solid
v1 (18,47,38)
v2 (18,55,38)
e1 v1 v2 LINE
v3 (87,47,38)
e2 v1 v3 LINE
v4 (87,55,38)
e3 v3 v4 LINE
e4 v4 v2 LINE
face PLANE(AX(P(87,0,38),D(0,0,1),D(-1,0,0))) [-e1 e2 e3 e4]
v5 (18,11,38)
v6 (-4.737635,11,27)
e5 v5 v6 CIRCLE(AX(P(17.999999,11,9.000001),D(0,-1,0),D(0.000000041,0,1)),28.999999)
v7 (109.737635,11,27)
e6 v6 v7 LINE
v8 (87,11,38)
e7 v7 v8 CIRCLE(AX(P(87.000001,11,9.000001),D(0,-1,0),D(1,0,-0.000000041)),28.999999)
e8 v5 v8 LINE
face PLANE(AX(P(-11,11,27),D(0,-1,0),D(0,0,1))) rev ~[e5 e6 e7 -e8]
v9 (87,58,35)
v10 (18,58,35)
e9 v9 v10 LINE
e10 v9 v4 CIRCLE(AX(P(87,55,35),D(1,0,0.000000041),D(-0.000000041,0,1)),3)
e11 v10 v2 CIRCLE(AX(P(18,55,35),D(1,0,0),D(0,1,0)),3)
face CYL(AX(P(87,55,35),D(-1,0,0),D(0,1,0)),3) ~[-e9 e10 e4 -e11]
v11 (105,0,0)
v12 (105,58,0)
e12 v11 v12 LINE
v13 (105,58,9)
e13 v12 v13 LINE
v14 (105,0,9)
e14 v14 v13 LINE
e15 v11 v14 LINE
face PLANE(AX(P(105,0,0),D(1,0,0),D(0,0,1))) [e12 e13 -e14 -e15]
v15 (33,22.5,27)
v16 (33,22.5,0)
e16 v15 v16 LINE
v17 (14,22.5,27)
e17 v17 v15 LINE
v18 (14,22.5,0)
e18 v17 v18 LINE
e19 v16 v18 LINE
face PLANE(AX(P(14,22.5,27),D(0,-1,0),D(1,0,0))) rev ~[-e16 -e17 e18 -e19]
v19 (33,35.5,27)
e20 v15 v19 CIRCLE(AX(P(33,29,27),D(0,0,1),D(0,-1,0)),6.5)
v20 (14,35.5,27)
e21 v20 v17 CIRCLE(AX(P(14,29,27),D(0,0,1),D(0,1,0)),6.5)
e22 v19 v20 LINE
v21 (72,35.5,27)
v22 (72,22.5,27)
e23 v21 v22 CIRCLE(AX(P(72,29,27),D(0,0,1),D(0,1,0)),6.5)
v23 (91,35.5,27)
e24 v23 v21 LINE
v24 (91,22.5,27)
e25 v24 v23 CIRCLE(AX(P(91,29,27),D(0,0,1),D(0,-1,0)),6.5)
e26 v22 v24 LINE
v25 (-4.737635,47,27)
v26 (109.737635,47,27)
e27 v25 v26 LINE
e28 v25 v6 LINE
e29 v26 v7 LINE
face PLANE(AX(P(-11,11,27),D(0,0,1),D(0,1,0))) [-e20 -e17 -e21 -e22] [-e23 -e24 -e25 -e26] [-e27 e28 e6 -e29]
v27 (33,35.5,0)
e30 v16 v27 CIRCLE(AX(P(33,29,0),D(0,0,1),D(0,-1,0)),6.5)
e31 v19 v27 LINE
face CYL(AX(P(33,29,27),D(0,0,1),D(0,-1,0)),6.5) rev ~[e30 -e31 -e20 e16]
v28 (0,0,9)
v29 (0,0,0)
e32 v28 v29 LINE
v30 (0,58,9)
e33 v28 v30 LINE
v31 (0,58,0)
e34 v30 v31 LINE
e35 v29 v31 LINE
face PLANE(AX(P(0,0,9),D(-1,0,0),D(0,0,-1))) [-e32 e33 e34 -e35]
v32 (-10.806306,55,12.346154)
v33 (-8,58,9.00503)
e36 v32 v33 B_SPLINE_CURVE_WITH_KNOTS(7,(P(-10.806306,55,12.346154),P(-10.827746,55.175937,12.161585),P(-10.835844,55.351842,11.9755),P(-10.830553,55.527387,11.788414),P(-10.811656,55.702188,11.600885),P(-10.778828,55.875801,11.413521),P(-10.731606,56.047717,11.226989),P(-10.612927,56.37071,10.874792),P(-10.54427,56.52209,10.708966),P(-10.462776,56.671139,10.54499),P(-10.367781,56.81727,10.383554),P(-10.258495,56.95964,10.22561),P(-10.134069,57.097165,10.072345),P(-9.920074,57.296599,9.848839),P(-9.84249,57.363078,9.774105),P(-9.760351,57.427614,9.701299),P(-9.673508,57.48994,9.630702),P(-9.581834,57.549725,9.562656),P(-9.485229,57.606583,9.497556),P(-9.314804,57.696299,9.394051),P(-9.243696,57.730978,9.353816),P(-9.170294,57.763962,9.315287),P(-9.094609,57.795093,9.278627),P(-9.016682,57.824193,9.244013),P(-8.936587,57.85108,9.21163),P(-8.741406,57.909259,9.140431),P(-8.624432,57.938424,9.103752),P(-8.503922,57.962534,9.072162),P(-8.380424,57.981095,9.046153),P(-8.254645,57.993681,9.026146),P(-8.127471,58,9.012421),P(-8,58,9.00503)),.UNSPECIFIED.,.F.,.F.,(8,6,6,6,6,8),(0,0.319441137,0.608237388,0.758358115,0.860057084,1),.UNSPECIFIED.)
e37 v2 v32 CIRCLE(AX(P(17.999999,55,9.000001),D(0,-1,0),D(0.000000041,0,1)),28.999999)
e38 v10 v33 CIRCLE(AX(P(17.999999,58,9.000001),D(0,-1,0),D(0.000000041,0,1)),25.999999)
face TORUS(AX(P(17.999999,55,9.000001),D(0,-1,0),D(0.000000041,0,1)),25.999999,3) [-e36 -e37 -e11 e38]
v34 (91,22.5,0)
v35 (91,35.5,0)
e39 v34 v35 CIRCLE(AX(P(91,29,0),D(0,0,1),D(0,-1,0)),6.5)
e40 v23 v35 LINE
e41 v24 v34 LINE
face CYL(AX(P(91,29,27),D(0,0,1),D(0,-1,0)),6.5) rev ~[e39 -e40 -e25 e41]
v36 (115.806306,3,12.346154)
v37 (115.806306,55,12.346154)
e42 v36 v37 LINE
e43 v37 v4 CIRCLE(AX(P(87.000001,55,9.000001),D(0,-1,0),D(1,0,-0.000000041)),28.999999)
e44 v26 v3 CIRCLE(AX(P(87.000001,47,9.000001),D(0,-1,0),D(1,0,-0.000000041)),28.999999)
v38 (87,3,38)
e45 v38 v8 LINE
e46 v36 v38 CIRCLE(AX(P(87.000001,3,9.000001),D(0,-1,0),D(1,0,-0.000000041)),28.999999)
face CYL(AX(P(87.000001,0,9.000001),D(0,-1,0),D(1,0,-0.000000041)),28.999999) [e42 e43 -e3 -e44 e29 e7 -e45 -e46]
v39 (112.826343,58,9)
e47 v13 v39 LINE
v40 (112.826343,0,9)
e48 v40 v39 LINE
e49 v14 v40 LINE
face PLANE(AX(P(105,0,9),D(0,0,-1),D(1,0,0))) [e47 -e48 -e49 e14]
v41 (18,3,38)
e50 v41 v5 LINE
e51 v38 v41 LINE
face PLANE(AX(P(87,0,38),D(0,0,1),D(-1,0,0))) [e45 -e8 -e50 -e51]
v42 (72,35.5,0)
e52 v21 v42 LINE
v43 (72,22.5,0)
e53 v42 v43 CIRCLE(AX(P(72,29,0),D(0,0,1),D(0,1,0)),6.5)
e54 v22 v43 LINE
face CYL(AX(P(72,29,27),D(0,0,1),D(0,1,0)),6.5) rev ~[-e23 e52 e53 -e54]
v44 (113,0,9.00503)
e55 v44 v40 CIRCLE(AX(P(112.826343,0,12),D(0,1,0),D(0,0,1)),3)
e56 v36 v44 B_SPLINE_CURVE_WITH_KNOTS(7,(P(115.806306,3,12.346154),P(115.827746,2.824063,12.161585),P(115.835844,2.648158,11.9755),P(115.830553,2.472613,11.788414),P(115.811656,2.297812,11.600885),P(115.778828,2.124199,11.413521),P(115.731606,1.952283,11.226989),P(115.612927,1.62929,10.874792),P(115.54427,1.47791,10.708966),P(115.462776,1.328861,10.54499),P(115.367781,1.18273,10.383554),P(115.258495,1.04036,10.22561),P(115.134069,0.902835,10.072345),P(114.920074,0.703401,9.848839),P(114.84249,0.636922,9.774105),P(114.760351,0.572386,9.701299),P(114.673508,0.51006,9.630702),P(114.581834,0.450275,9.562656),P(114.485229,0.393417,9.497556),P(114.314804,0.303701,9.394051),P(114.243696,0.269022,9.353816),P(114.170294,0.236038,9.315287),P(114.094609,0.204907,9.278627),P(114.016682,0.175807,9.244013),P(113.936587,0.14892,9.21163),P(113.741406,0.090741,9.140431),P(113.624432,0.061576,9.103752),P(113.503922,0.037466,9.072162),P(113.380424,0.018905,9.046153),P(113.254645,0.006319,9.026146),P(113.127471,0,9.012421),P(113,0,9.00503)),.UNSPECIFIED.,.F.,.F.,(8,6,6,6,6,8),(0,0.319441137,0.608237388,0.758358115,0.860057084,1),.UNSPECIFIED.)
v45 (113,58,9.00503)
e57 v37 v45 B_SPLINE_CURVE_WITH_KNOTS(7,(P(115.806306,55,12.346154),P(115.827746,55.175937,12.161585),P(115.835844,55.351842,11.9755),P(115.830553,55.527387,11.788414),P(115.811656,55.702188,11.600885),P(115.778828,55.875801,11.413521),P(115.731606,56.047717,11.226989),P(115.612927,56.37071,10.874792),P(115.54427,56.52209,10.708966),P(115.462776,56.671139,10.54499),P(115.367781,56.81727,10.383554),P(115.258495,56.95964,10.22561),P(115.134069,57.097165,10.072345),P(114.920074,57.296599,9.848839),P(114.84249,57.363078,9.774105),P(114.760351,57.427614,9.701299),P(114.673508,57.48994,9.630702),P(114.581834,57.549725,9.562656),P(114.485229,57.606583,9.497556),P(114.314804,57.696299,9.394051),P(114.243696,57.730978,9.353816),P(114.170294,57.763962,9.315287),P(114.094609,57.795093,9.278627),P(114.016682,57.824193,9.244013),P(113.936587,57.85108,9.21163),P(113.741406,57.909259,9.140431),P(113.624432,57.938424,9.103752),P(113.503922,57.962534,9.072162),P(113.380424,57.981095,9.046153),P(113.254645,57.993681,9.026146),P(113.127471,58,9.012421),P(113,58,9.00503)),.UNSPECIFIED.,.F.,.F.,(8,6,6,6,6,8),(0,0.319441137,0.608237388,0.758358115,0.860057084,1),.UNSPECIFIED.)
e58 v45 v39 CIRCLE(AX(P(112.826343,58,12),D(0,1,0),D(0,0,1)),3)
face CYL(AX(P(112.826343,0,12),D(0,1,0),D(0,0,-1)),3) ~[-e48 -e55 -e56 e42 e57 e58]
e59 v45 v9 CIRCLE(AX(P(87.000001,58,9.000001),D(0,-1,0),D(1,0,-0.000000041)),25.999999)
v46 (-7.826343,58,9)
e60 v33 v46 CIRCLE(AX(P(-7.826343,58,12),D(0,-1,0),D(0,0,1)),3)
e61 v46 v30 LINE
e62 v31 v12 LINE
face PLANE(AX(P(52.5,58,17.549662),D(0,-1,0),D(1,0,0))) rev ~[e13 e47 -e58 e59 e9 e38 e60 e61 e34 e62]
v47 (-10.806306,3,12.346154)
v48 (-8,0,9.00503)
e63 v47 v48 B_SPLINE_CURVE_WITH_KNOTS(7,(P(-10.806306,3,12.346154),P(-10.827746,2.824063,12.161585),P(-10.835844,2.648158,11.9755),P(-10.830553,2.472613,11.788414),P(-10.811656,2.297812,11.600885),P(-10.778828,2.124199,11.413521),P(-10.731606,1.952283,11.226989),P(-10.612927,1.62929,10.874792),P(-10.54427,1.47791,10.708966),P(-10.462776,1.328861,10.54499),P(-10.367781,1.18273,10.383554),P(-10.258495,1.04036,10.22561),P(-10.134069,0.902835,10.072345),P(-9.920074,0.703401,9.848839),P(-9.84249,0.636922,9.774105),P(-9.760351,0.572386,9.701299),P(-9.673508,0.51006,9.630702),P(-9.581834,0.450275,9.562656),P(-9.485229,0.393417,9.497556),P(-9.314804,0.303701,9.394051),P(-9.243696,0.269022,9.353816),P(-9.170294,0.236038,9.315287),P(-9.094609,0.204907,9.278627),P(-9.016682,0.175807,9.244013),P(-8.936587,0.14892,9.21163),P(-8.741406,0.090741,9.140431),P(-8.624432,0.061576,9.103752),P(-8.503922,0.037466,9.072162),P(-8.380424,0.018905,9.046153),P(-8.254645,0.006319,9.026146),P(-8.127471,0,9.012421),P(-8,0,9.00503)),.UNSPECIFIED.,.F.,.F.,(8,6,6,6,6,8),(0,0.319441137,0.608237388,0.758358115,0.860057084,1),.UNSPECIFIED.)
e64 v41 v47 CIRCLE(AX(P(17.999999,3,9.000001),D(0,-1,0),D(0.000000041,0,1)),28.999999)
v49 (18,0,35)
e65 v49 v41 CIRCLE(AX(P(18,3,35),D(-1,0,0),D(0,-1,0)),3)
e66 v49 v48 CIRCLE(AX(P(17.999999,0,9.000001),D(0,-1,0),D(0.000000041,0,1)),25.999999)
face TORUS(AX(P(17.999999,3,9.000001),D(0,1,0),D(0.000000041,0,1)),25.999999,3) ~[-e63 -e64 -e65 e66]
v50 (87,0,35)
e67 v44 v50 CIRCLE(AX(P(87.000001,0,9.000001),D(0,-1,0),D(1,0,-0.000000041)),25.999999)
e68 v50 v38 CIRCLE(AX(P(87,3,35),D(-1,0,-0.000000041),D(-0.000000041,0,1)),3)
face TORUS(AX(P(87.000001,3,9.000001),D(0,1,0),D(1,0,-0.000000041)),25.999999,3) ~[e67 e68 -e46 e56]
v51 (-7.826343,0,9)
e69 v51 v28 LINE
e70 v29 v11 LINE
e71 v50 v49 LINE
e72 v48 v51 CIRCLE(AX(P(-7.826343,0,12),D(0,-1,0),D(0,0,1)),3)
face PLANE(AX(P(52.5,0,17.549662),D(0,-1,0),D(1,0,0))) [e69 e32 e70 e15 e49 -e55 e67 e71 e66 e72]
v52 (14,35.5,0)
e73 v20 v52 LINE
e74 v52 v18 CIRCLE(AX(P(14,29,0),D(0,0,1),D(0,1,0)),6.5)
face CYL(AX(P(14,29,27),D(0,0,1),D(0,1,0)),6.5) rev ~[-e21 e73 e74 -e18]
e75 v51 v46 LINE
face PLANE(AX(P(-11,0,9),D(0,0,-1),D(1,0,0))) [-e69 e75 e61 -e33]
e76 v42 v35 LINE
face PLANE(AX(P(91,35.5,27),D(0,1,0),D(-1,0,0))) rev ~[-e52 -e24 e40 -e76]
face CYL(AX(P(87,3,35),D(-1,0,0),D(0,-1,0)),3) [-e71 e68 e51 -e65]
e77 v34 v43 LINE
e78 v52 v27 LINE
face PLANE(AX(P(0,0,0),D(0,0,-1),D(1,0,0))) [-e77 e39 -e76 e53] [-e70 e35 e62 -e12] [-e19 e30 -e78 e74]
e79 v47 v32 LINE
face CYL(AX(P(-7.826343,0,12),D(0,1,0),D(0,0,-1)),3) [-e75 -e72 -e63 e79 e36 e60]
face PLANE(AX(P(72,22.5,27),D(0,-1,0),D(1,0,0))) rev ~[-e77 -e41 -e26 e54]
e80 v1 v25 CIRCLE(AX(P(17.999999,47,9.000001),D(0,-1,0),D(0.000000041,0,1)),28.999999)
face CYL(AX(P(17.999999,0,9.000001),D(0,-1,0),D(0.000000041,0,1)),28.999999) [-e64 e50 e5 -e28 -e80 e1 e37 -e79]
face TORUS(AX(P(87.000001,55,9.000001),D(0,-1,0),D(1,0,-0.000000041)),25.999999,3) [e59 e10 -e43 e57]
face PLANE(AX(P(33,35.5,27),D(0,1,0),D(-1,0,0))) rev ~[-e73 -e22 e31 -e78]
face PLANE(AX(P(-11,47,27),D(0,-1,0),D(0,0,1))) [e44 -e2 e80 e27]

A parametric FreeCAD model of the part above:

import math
import FreeCAD as App
import Part
import Sketcher
from FreeCAD import Vector


def edges_at(feature, points):
    """Names of the edges that pass closest to the given points."""
    edges = feature.Shape.Edges
    near = lambda p: min(range(len(edges)), key=lambda i: edges[i].distToShape(Part.Vertex(*p))[0])
    return sorted({f"Edge{near(p) + 1}" for p in points})

doc = App.newDocument("Part")
params = doc.addObject("Spreadsheet::Sheet", "Params")
for row, (alias, value) in enumerate([
    ("sketch1_radius", "28.999999 mm"),
    ("sketch1_width", "105 mm"),
    ("sketch1_width2", "11 mm"),
    ("sketch1_height", "9 mm"),
    ("pad1_length", "58 mm"),
    ("sketch2_width", "36 mm"),
    ("sketch2_height", "11 mm"),
    ("pocket1_length", "127 mm"),
    ("sketch3_radius", "6.5 mm"),
    ("sketch3_width", "19 mm"),
    ("pocket2_length", "38 mm"),
    ("fillet_radius", "3 mm"),
], start=1):
    params.set(f"A{row}", alias)
    params.set(f"B{row}", "=" + value)
    params.setAlias(f"B{row}", alias)

body = doc.addObject("PartDesign::Body", "Body")

# Sketch on XZ plane
sketch1 = body.newObject("Sketcher::SketchObject", "Sketch")
sketch1.AttachmentSupport = (doc.getObject("XZ_Plane"), [""])
sketch1.MapMode = "FlatFace"
sketch1.addGeometry([
    Part.LineSegment(Vector(0, 9, 0), Vector(0, 0, 0)),  # 0
    Part.LineSegment(Vector(0, 0, 0), Vector(105, 0, 0)),  # 1
    Part.LineSegment(Vector(105, 0, 0), Vector(105, 9, 0)),  # 2
    Part.LineSegment(Vector(105, 9, 0), Vector(116, 9, 0)),  # 3
    Part.ArcOfCircle(Part.Circle(Vector(87.000001, 9.000001, 0), Vector(0, 0, 1), 28.999999), math.radians(-0.000002), math.radians(90.000002)),  # 4
    Part.LineSegment(Vector(87, 38, 0), Vector(18, 38, 0)),  # 5
    Part.ArcOfCircle(Part.Circle(Vector(17.999999, 9.000001, 0), Vector(0, 0, 1), 28.999999), math.radians(89.999998), math.radians(180.000002)),  # 6
    Part.LineSegment(Vector(-11, 9, 0), Vector(0, 9, 0)),  # 7
], False)
sketch1.addConstraint([
    Sketcher.Constraint("Coincident", 0, 2, 1, 1),
    Sketcher.Constraint("Coincident", 1, 2, 2, 1),
    Sketcher.Constraint("Coincident", 2, 2, 3, 1),
    Sketcher.Constraint("Coincident", 3, 2, 4, 1),
    Sketcher.Constraint("Tangent", 4, 2, 5, 1),
    Sketcher.Constraint("Tangent", 5, 2, 6, 1),
    Sketcher.Constraint("Coincident", 6, 2, 7, 1),
    Sketcher.Constraint("Coincident", 7, 2, 0, 1),
    Sketcher.Constraint("Vertical", 0),
    Sketcher.Constraint("Horizontal", 1),
    Sketcher.Constraint("Vertical", 2),
    Sketcher.Constraint("Horizontal", 3),
    Sketcher.Constraint("Horizontal", 5),
    Sketcher.Constraint("Horizontal", 7),
    Sketcher.Constraint("Coincident", 0, 2, -1, 1),
    Sketcher.Constraint("Equal", 4, 6),
    Sketcher.Constraint("Horizontal", 6, 3, 2, 2),
    Sketcher.Constraint("Horizontal", 3, 2, 6, 2),
    Sketcher.Constraint("Equal", 3, 7),
    Sketcher.Constraint("Radius", 4, 28.999999),
    Sketcher.Constraint("DistanceX", 1, 1, 1, 2, 105.0),
    Sketcher.Constraint("DistanceX", 3, 1, 3, 2, 11.0),
    Sketcher.Constraint("DistanceY", 0, 2, 0, 1, 9.0),
])
sketch1.setExpression("Constraints[19]", "Params.sketch1_radius")
sketch1.setExpression("Constraints[20]", "Params.sketch1_width")
sketch1.setExpression("Constraints[21]", "Params.sketch1_width2")
sketch1.setExpression("Constraints[22]", "Params.sketch1_height")
pad1 = body.newObject("PartDesign::Pad", "Pad")
pad1.Profile = sketch1
pad1.setExpression("Length", "Params.pad1_length")
pad1.Reversed = True

# Sketch on YZ plane
sketch2 = body.newObject("Sketcher::SketchObject", "Sketch001")
sketch2.AttachmentSupport = (doc.getObject("YZ_Plane"), [""])
sketch2.MapMode = "FlatFace"
sketch2.AttachmentOffset = App.Placement(Vector(0, 0, -11), App.Rotation())
sketch2.addGeometry([
    Part.LineSegment(Vector(11, 38, 0), Vector(11, 27, 0)),
    Part.LineSegment(Vector(11, 27, 0), Vector(47, 27, 0)),
    Part.LineSegment(Vector(47, 27, 0), Vector(47, 38, 0)),
    Part.LineSegment(Vector(47, 38, 0), Vector(11, 38, 0)),
], False)
sketch2.addConstraint([
    Sketcher.Constraint("Coincident", 0, 2, 1, 1),
    Sketcher.Constraint("Coincident", 1, 2, 2, 1),
    Sketcher.Constraint("Coincident", 2, 2, 3, 1),
    Sketcher.Constraint("Coincident", 3, 2, 0, 1),
    Sketcher.Constraint("Vertical", 0),
    Sketcher.Constraint("Horizontal", 1),
    Sketcher.Constraint("Vertical", 2),
    Sketcher.Constraint("Horizontal", 3),
    Sketcher.Constraint("DistanceX", 1, 1, 1, 2, 36.0),
    Sketcher.Constraint("DistanceY", 0, 2, 0, 1, 11.0),
    Sketcher.Constraint("DistanceX", -1, 1, 0, 2, 11.0),
    Sketcher.Constraint("DistanceY", -1, 1, 0, 2, 27.0),
])
sketch2.setExpression("Constraints[8]", "Params.sketch2_width")
sketch2.setExpression("Constraints[9]", "Params.sketch2_height")
pocket1 = body.newObject("PartDesign::Pocket", "Pocket")
pocket1.Profile = sketch2
pocket1.setExpression("Length", "Params.pocket1_length")
pocket1.Reversed = True

# Sketch on XY plane
sketch3 = body.newObject("Sketcher::SketchObject", "Sketch002")
sketch3.AttachmentSupport = (doc.getObject("XY_Plane"), [""])
sketch3.MapMode = "FlatFace"
sketch3.AttachmentOffset = App.Placement(Vector(0, 0, 27), App.Rotation())
sketch3.addGeometry([
    Part.LineSegment(Vector(33, 35.5, 0), Vector(14, 35.5, 0)),  # 0
    Part.ArcOfCircle(Part.Circle(Vector(14, 29, 0), Vector(0, 0, 1), 6.5), math.radians(90), math.radians(270)),  # 1
    Part.LineSegment(Vector(14, 22.5, 0), Vector(33, 22.5, 0)),  # 2
    Part.ArcOfCircle(Part.Circle(Vector(33, 29, 0), Vector(0, 0, 1), 6.5), math.radians(-90), math.radians(90)),  # 3
    Part.LineSegment(Vector(72, 22.5, 0), Vector(91, 22.5, 0)),  # 4
    Part.ArcOfCircle(Part.Circle(Vector(91, 29, 0), Vector(0, 0, 1), 6.5), math.radians(-90), math.radians(90)),  # 5
    Part.LineSegment(Vector(91, 35.5, 0), Vector(72, 35.5, 0)),  # 6
    Part.ArcOfCircle(Part.Circle(Vector(72, 29, 0), Vector(0, 0, 1), 6.5), math.radians(90), math.radians(270)),  # 7
], False)
sketch3.addConstraint([
    Sketcher.Constraint("Tangent", 0, 2, 1, 1),
    Sketcher.Constraint("Tangent", 1, 2, 2, 1),
    Sketcher.Constraint("Tangent", 2, 2, 3, 1),
    Sketcher.Constraint("Tangent", 3, 2, 0, 1),
    Sketcher.Constraint("Tangent", 4, 2, 5, 1),
    Sketcher.Constraint("Tangent", 5, 2, 6, 1),
    Sketcher.Constraint("Tangent", 6, 2, 7, 1),
    Sketcher.Constraint("Tangent", 7, 2, 4, 1),
    Sketcher.Constraint("Horizontal", 0),
    Sketcher.Constraint("Horizontal", 2),
    Sketcher.Constraint("Horizontal", 4),
    Sketcher.Constraint("Horizontal", 6),
    Sketcher.Constraint("Equal", 3, 5),
    Sketcher.Constraint("Horizontal", 3, 3, 5, 3),
    Sketcher.Constraint("Equal", 2, 4),
    Sketcher.Constraint("Radius", 1, 6.5),
    Sketcher.Constraint("DistanceX", 0, 2, 0, 1, 19.0),
    Sketcher.Constraint("DistanceX", -1, 1, 1, 3, 14.0),
    Sketcher.Constraint("DistanceY", -1, 1, 1, 3, 29.0),
    Sketcher.Constraint("DistanceX", -1, 1, 5, 3, 91.0),
])
sketch3.setExpression("Constraints[15]", "Params.sketch3_radius")
sketch3.setExpression("Constraints[16]", "Params.sketch3_width")
pocket2 = body.newObject("PartDesign::Pocket", "Pocket001")
pocket2.Profile = sketch3
pocket2.setExpression("Length", "Params.pocket2_length")
doc.recompute()

fillet = body.newObject("PartDesign::Fillet", "Fillet")
fillet.Base = (pocket2, edges_at(pocket2, [
    (107.506, 0, 29.506),
    (116, 29, 9),
    (107.506, 58, 29.506),
    (-11, 29, 9),
]))
fillet.setExpression("Radius", "Params.fillet_radius")

doc.recompute()
